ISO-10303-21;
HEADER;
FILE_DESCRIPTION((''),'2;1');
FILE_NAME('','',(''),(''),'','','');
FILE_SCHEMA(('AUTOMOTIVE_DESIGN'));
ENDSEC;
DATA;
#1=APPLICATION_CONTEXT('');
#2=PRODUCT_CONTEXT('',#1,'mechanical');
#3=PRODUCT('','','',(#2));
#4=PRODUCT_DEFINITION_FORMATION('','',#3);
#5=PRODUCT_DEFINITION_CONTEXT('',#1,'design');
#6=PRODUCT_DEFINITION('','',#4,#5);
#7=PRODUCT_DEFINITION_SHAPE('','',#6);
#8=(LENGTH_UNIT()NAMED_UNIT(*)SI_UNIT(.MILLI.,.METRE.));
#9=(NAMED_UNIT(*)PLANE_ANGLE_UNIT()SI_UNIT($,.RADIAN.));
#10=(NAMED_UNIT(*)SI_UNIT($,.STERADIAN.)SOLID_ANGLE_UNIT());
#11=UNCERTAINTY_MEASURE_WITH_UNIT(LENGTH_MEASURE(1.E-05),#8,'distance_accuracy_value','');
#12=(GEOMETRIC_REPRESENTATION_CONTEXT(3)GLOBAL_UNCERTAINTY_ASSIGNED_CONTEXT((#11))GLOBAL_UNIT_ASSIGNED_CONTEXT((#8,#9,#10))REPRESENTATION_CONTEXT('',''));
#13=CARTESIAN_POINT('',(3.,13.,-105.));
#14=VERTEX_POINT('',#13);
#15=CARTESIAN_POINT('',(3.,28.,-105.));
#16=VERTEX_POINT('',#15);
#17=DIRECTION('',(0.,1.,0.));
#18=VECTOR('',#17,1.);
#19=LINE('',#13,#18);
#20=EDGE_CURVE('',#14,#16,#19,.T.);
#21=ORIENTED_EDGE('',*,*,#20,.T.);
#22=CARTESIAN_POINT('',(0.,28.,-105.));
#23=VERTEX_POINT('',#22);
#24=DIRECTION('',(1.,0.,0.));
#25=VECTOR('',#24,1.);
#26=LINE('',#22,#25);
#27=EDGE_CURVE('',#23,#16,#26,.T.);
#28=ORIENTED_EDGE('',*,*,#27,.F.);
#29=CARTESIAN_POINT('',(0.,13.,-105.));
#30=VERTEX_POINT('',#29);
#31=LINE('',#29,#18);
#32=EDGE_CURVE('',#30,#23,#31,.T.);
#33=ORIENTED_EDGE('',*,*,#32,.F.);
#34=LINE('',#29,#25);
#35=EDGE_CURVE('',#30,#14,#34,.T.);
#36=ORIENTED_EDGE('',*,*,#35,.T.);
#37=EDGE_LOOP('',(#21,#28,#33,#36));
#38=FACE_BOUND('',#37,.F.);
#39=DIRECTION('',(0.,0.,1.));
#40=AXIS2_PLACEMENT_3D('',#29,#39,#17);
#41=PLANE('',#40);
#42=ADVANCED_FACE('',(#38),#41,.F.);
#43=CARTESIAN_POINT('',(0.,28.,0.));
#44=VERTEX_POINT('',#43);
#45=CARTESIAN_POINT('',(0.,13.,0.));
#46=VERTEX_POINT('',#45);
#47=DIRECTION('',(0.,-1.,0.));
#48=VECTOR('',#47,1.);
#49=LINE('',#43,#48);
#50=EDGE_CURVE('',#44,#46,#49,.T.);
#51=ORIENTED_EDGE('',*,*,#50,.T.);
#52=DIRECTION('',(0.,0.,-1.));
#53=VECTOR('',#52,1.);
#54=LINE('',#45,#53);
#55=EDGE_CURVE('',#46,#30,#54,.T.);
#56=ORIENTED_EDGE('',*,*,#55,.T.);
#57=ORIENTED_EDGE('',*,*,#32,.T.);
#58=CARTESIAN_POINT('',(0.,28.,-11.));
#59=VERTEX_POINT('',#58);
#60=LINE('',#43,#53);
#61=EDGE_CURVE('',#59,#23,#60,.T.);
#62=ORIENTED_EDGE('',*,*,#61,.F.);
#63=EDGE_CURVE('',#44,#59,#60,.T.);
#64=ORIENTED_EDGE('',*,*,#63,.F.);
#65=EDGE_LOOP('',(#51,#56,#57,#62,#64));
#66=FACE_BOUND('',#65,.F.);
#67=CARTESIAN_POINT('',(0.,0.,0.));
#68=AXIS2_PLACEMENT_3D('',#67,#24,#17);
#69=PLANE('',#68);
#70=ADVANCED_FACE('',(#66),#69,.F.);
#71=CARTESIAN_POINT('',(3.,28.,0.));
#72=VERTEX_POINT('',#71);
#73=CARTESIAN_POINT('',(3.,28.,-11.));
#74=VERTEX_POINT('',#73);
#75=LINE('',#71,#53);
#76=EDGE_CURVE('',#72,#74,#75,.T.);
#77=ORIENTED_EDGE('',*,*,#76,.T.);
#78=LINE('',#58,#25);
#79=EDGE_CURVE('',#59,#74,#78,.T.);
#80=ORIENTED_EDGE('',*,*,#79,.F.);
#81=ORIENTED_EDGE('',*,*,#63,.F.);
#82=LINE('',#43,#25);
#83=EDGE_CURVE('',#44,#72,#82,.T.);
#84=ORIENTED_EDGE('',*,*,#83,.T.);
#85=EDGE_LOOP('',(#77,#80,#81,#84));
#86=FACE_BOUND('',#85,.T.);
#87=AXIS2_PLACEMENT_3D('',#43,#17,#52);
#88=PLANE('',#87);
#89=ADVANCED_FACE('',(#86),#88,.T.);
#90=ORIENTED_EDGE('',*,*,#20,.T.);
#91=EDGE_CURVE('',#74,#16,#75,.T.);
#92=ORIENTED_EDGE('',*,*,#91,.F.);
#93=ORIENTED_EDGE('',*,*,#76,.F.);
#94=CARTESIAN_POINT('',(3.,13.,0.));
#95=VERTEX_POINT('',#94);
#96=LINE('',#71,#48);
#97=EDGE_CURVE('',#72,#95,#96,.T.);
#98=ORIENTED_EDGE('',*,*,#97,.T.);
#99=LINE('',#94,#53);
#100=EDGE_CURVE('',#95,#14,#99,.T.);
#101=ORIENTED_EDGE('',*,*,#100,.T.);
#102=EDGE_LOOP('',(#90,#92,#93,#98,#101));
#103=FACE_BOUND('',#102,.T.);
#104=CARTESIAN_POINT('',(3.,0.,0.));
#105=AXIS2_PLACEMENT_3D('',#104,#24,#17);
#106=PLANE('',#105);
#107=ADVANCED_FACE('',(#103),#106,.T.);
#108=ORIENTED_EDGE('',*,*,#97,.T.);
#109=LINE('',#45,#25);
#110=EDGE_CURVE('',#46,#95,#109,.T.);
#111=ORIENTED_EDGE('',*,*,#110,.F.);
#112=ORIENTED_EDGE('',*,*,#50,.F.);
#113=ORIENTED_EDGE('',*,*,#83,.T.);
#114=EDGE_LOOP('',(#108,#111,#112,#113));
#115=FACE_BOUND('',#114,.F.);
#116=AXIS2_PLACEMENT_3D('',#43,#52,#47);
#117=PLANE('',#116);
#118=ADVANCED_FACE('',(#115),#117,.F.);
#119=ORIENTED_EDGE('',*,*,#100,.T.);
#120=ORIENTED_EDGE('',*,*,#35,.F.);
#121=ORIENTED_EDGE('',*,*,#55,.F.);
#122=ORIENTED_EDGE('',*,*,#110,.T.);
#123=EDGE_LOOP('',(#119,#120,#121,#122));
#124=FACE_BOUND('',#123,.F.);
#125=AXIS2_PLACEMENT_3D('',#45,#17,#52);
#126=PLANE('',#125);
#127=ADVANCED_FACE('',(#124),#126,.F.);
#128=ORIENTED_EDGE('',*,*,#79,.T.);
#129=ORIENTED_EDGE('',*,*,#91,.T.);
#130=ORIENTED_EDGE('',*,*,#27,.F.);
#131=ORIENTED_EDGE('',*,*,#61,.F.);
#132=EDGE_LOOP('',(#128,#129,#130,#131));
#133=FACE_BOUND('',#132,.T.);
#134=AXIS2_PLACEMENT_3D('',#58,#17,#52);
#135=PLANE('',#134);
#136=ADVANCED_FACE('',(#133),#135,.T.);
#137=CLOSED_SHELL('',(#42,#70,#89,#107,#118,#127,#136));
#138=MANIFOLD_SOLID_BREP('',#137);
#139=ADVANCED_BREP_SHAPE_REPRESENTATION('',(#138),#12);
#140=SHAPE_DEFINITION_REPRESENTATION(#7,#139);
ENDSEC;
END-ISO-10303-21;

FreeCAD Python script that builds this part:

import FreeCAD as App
import Part
import Sketcher
from FreeCAD import Vector
Q = App.Units.Quantity


def add_polygon(sketch, points):
    """Adds a closed chain of lines whose ends are joined by coincident constraints."""
    first, n = sketch.GeometryCount, len(points)
    for a, b in zip(points, points[1:] + points[:1]):
        sketch.addGeometry(Part.LineSegment(App.Vector(*a, 0), App.Vector(*b, 0)), False)
    for i in range(n):
        sketch.addConstraint(Sketcher.Constraint("Coincident", first + i, 2, first + (i + 1) % n, 1))

doc = App.newDocument("Part")
body = doc.addObject("PartDesign::Body", "Body")

# Sketch on YZ plane
sketch1 = doc.addObject("Sketcher::SketchObject", "Sketch")
body.addObject(sketch1)
sketch1.AttachmentSupport = (doc.YZ_Plane, [""])
sketch1.MapMode = "FlatFace"
add_polygon(sketch1, [(28, -105), (28, 0), (13, 0), (13, -105)])  # lines 0-3
sketch1.addConstraint([
    Sketcher.Constraint("Vertical", 0),
    Sketcher.Constraint("Horizontal", 1),
    Sketcher.Constraint("Vertical", 2),
    Sketcher.Constraint("Horizontal", 3),
    Sketcher.Constraint("PointOnObject", 0, 2, -1),
    Sketcher.Constraint("DistanceX", 1, 2, 1, 1, Q("15 mm")),
    Sketcher.Constraint("DistanceY", 0, 1, 0, 2, Q("105 mm")),
    Sketcher.Constraint("DistanceX", -1, 1, 0, 2, Q("28 mm")),
])
pad1 = doc.addObject("PartDesign::Pad", "Pad")
body.addObject(pad1)
pad1.Profile = sketch1
pad1.Length = 3

doc.recompute()
